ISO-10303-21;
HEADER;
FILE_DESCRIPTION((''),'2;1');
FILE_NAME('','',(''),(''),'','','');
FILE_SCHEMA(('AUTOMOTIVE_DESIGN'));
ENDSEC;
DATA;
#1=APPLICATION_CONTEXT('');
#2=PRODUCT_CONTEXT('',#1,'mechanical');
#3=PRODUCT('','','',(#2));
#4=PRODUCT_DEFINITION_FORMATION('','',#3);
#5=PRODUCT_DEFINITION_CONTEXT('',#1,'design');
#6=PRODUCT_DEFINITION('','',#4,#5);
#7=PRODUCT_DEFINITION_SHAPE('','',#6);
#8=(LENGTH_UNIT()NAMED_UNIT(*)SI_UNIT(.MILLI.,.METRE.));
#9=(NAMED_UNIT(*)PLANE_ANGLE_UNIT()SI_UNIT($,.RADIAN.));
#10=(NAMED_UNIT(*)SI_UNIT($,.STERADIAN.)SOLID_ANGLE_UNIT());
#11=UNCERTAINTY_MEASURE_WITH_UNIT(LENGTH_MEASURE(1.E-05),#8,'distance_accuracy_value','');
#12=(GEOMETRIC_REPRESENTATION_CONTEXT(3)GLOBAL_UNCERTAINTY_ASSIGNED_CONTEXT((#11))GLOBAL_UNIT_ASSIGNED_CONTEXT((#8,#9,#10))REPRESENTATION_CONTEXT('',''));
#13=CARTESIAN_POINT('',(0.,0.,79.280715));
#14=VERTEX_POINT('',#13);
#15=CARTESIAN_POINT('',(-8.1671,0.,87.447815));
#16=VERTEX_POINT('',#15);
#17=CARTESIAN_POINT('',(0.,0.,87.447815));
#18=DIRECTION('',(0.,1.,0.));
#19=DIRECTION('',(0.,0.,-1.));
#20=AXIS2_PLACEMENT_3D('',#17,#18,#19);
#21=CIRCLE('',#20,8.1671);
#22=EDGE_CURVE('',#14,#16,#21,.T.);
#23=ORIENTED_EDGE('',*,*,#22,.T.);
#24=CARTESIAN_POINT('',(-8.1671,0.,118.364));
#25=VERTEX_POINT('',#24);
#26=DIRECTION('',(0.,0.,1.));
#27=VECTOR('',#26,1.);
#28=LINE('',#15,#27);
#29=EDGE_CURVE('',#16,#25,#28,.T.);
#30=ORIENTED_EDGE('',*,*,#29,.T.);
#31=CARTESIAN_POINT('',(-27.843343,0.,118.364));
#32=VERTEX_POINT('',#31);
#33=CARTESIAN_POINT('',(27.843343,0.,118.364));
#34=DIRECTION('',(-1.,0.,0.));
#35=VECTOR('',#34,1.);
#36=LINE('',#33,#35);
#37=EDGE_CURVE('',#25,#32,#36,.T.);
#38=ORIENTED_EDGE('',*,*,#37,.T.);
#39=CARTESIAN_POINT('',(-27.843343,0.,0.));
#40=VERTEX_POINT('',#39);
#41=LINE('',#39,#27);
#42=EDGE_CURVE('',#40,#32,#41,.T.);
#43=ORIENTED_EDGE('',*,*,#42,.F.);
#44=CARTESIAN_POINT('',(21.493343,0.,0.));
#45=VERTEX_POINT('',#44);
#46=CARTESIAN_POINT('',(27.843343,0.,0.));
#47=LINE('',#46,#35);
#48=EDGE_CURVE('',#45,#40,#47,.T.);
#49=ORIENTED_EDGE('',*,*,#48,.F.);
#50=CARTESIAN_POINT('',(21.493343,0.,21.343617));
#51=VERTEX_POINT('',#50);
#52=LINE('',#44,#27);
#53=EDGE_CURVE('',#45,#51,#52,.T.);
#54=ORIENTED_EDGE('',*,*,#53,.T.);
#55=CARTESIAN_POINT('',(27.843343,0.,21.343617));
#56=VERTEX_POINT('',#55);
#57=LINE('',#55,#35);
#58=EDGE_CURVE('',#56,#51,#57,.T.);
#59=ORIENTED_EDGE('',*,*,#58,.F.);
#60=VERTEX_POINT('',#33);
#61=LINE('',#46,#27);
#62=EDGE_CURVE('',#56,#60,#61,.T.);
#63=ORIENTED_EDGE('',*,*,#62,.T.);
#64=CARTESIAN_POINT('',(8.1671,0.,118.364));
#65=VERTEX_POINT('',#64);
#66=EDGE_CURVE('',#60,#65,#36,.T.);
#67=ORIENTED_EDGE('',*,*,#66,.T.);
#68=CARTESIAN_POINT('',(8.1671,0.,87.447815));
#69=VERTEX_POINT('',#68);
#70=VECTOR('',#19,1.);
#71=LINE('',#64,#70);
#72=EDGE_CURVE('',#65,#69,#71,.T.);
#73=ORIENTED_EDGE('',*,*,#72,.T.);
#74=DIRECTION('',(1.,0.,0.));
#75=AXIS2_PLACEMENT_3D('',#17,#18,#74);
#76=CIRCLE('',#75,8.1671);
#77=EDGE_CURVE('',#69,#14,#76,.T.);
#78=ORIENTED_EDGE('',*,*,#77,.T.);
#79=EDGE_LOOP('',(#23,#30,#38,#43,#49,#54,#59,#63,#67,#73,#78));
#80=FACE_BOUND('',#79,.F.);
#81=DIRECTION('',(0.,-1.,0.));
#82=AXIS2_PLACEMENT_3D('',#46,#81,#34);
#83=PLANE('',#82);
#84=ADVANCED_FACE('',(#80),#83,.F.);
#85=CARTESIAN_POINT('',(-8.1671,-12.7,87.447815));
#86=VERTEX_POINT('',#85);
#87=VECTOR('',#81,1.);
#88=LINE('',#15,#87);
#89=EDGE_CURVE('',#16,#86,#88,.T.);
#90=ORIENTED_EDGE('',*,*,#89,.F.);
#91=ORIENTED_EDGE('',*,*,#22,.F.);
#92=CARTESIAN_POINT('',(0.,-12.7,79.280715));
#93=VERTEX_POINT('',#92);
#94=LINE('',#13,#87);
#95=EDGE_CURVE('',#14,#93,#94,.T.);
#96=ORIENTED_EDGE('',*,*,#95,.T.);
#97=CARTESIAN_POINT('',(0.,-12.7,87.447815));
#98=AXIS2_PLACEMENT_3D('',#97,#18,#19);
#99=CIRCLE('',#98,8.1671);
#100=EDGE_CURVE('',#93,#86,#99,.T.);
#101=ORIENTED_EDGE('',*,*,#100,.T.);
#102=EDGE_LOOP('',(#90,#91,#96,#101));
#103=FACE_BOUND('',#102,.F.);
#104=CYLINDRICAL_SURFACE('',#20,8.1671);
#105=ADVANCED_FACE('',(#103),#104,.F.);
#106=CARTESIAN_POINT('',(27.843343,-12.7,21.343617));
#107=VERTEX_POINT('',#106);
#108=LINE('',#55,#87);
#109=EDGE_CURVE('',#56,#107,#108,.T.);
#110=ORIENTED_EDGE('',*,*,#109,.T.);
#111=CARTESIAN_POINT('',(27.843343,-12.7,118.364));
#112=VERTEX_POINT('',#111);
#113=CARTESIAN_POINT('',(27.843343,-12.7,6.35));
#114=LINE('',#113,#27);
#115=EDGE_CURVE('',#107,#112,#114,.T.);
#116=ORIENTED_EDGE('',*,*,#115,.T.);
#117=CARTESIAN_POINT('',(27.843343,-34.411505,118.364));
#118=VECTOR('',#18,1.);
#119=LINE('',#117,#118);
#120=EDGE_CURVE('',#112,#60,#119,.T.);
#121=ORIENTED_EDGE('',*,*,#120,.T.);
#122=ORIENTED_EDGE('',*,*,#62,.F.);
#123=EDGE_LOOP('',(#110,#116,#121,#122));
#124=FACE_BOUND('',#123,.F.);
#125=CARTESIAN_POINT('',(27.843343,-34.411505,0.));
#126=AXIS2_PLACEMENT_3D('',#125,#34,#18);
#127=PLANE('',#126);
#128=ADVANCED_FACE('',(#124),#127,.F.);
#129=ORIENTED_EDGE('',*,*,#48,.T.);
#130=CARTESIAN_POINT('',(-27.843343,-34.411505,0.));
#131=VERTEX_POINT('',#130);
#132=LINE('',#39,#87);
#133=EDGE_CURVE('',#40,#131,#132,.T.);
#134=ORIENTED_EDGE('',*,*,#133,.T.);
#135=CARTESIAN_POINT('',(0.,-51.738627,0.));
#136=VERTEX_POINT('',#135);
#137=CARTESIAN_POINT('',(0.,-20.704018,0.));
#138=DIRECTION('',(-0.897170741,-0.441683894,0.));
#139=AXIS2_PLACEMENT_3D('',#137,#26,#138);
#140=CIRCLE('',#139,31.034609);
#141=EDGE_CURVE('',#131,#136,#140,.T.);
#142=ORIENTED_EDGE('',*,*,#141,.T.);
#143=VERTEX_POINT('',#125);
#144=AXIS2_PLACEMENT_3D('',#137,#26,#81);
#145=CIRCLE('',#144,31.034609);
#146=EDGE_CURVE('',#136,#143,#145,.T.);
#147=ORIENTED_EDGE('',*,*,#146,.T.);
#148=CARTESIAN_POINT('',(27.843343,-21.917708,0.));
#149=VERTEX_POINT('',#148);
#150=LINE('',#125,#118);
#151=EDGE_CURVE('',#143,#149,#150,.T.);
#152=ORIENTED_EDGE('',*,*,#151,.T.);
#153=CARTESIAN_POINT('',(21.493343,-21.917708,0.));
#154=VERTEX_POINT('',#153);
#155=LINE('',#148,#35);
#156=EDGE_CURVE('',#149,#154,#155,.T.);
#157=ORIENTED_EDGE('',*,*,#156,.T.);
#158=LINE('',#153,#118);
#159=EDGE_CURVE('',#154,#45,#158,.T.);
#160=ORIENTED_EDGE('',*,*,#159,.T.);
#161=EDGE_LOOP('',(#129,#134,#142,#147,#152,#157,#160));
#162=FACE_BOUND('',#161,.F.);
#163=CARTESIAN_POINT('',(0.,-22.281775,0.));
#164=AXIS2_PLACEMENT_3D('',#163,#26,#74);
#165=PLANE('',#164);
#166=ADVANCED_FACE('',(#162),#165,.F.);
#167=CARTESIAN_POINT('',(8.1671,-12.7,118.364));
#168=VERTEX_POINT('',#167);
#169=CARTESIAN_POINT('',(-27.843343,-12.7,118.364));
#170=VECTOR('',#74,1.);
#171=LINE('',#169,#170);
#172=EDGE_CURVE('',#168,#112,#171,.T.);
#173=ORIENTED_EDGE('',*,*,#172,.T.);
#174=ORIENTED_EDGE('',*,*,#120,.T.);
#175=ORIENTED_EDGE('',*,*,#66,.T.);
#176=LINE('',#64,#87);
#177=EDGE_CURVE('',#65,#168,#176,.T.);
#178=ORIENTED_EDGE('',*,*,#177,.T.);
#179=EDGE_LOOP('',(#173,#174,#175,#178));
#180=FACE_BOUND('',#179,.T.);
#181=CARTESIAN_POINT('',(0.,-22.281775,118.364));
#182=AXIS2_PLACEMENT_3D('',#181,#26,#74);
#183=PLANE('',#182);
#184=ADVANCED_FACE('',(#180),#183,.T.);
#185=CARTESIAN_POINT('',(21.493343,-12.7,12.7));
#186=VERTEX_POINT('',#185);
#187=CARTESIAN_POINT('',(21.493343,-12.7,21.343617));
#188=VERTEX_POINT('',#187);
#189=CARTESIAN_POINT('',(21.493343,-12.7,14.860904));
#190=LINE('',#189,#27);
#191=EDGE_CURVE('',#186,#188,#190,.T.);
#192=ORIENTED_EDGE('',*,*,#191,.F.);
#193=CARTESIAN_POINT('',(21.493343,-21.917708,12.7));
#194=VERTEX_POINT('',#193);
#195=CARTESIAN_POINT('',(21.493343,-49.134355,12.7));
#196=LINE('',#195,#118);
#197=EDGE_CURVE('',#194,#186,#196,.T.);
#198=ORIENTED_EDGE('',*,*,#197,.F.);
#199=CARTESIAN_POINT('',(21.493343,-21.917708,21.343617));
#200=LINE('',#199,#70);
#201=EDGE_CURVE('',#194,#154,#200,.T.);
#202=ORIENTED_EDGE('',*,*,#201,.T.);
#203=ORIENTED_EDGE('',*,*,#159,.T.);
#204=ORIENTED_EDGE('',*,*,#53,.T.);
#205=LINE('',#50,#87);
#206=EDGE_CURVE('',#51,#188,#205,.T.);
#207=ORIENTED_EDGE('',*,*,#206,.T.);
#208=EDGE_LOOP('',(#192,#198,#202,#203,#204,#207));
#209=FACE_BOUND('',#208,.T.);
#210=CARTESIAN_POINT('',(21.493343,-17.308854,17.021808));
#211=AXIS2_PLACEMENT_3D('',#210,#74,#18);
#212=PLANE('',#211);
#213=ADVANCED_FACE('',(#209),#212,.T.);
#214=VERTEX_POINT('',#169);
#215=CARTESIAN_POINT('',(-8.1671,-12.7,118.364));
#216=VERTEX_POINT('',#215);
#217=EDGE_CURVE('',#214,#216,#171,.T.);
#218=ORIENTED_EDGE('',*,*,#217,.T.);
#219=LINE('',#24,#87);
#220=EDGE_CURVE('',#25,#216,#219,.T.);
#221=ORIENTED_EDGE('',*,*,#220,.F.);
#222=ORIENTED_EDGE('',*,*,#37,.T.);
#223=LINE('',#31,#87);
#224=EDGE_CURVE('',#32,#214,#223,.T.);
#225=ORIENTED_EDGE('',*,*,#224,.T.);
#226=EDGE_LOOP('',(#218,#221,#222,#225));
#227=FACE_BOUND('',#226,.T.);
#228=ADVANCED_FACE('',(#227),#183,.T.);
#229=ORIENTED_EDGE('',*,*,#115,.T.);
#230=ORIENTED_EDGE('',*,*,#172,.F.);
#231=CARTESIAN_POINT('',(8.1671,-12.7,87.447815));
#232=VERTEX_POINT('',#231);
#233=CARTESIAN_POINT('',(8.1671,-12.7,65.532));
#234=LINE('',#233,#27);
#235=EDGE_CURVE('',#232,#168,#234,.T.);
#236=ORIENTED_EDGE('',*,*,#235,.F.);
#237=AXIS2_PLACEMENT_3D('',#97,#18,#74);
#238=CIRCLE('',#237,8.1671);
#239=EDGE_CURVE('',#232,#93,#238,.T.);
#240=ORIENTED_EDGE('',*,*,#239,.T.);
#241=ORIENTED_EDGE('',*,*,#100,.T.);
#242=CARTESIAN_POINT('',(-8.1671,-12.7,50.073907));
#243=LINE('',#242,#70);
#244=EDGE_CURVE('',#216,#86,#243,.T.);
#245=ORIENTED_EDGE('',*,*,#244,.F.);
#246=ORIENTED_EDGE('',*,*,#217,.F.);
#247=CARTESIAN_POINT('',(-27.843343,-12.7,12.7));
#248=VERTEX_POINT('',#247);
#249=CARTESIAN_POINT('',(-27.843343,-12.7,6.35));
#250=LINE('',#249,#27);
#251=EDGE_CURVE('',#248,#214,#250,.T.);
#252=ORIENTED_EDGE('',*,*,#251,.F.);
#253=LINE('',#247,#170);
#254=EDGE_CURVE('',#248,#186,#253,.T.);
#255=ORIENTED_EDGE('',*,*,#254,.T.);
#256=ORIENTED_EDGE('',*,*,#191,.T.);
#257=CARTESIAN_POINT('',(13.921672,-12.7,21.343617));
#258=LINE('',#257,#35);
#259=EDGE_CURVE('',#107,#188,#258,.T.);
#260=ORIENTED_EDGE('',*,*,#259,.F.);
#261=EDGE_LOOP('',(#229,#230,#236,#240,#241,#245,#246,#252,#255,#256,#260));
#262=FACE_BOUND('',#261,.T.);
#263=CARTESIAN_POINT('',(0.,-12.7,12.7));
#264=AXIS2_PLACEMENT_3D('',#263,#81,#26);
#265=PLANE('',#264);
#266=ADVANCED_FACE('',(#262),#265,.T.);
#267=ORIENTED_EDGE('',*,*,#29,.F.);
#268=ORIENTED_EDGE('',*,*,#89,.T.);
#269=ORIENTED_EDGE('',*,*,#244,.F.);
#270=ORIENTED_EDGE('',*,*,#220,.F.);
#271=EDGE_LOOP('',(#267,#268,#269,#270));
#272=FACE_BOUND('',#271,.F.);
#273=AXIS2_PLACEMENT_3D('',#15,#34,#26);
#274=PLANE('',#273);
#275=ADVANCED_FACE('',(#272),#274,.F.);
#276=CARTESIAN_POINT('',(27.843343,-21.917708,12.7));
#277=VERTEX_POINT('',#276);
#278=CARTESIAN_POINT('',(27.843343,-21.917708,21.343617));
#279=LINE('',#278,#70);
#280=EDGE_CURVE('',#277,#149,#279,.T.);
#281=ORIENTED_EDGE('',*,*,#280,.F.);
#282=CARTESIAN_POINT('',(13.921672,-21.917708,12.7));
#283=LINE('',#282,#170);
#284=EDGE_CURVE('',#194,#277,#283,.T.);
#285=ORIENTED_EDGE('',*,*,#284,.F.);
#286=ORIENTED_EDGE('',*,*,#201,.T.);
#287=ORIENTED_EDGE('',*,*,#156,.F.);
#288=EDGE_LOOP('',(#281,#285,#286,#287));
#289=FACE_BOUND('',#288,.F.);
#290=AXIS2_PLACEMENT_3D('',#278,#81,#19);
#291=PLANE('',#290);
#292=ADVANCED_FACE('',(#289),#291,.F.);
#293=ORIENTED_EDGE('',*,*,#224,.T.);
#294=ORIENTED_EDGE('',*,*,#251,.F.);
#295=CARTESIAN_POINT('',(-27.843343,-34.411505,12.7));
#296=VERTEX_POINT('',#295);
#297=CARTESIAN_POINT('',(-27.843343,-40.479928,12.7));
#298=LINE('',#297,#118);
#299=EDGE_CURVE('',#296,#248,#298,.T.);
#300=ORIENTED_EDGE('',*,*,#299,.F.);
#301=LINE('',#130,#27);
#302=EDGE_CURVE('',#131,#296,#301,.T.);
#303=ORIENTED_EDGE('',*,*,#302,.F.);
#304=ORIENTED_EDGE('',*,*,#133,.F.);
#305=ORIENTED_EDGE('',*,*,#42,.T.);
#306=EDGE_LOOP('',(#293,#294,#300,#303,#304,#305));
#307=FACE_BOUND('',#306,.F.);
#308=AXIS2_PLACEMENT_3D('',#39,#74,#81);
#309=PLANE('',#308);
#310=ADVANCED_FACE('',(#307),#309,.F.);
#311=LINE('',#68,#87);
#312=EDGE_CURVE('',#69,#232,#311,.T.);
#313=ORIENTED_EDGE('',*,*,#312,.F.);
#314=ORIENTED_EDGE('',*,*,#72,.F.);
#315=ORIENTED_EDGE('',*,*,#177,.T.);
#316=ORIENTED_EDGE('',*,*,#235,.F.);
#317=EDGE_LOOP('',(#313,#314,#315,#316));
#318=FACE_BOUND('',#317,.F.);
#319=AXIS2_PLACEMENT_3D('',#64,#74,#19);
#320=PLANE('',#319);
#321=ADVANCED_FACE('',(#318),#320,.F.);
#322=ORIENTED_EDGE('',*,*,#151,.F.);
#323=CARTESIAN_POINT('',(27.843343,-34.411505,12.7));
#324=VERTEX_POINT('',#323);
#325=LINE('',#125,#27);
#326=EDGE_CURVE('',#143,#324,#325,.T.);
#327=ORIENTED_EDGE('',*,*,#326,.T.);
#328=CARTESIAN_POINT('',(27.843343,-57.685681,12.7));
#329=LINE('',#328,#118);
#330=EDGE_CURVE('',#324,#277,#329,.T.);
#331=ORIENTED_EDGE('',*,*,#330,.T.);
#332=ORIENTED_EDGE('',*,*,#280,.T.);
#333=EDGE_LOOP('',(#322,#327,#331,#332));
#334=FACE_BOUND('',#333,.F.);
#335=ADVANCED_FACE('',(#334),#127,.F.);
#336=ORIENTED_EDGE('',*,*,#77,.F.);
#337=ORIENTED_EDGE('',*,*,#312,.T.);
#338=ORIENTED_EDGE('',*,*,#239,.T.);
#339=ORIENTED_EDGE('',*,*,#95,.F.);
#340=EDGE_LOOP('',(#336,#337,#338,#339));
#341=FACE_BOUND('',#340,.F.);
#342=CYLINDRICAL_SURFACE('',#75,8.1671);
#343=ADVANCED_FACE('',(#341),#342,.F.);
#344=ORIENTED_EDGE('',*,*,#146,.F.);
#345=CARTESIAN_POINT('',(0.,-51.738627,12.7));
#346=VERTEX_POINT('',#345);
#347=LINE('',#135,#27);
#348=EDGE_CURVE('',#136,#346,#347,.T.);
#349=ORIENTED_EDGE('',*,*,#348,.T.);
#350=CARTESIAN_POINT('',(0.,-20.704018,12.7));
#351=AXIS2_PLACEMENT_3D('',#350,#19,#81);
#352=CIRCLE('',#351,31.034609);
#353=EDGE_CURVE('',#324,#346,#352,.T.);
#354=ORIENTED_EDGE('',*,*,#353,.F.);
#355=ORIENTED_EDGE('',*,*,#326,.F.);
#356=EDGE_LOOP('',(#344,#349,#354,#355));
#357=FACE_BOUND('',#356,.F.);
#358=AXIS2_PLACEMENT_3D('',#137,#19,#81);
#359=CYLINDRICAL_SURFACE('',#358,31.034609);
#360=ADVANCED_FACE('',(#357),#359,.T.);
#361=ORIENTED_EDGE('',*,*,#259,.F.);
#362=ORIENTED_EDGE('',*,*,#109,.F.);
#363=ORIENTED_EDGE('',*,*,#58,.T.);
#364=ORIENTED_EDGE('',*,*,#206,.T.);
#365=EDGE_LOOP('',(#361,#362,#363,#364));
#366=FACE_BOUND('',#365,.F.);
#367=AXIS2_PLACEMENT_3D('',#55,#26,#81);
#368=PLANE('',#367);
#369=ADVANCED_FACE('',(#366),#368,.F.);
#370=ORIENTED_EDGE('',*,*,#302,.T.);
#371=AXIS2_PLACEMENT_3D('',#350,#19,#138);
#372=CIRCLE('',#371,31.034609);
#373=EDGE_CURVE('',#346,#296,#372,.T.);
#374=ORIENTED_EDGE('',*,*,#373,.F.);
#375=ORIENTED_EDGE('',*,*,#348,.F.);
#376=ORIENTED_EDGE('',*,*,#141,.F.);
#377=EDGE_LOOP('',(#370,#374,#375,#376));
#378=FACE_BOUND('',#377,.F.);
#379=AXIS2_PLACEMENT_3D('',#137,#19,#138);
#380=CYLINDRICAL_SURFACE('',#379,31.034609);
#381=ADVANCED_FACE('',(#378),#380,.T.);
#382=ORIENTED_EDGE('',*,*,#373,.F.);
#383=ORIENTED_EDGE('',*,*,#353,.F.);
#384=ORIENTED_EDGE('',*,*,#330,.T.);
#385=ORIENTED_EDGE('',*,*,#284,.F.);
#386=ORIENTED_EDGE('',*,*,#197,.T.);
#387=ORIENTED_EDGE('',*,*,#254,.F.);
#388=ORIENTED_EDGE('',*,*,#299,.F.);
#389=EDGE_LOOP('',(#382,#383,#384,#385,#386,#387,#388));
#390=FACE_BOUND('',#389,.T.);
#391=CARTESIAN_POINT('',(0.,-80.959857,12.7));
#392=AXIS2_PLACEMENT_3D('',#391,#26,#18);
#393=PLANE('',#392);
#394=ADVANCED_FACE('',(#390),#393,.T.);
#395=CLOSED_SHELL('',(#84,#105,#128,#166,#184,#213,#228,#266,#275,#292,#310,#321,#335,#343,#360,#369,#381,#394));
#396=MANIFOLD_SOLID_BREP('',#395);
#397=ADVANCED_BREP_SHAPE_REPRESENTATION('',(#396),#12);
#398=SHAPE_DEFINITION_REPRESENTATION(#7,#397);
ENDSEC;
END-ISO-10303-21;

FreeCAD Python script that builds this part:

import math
import FreeCAD as App
import Part
import Sketcher

V = App.Vector
Q = App.Units.Quantity


def add_polygon(sketch, points):
    """Adds a closed chain of lines whose ends are joined by coincident constraints."""
    first, n = sketch.GeometryCount, len(points)
    for a, b in zip(points, points[1:] + points[:1]):
        sketch.addGeometry(Part.LineSegment(App.Vector(*a, 0), App.Vector(*b, 0)), False)
    for i in range(n):
        sketch.addConstraint(Sketcher.Constraint("Coincident", first + i, 2, first + (i + 1) % n, 1))

doc = App.newDocument("Part")
body = doc.addObject("PartDesign::Body", "Body")

sketch1 = body.newObject("Sketcher::SketchObject", "Sketch")
sketch1.AttachmentSupport = (doc.getObject("XY_Plane"), [""])
sketch1.MapMode = "FlatFace"
sketch1.addGeometry(Part.LineSegment(V(27.843343, 0, 0), V(-27.843343, 0, 0)), False)
sketch1.addGeometry(Part.LineSegment(V(-27.843343, 0, 0), V(-27.843343, -34.411505, 0)), False)
sketch1.addGeometry(Part.ArcOfCircle(Part.Circle(V(0, -20.704018, 0), V(0, 0, 1), 31.034609), math.radians(-153.78863), math.radians(-90)), False)
sketch1.addGeometry(Part.ArcOfCircle(Part.Circle(V(0, -20.704018, 0), V(0, 0, 1), 31.034609), math.radians(-90), math.radians(-26.21137)), False)
sketch1.addGeometry(Part.LineSegment(V(27.843343, -34.411505, 0), V(27.843343, 0, 0)), False)
sketch1.addConstraint(Sketcher.Constraint("Coincident", 0, 2, 1, 1))
sketch1.addConstraint(Sketcher.Constraint("Coincident", 1, 2, 2, 1))
sketch1.addConstraint(Sketcher.Constraint("Tangent", 2, 2, 3, 1))
sketch1.addConstraint(Sketcher.Constraint("Coincident", 3, 2, 4, 1))
sketch1.addConstraint(Sketcher.Constraint("Coincident", 4, 2, 0, 1))
sketch1.addConstraint(Sketcher.Constraint("Horizontal", 0))
sketch1.addConstraint(Sketcher.Constraint("Vertical", 1))
sketch1.addConstraint(Sketcher.Constraint("Vertical", 4))
sketch1.addConstraint(Sketcher.Constraint("Equal", 2, 3))
sketch1.addConstraint(Sketcher.Constraint("Symmetric", 0, 2, 4, 2, -1, 1))
sketch1.addConstraint(Sketcher.Constraint("PointOnObject", 2, 3, -2))
sketch1.addConstraint(Sketcher.Constraint("PointOnObject", 2, 2, -2))
sketch1.addConstraint(Sketcher.Constraint("Radius", 2, Q("31.034609 mm")))
sketch1.addConstraint(Sketcher.Constraint("DistanceX", 0, 2, 0, 1, Q("55.686686 mm")))
sketch1.addConstraint(Sketcher.Constraint("DistanceY", 1, 2, 1, 1, Q("34.411505 mm")))
pad1 = body.newObject("PartDesign::Pad", "Pad")
pad1.Profile = sketch1
pad1.Length = Q("4.66 in")

sketch2 = body.newObject("Sketcher::SketchObject", "Sketch001")
sketch2.AttachmentSupport = (doc.getObject("YZ_Plane"), [""])
sketch2.MapMode = "FlatFace"
add_polygon(sketch2, [(-80.959857, 118.364), (-80.959857, 12.7), (-12.7, 12.7), (-12.7, 118.364)])
sketch2.addConstraint(Sketcher.Constraint("Vertical", 0))
sketch2.addConstraint(Sketcher.Constraint("Horizontal", 1))
sketch2.addConstraint(Sketcher.Constraint("Vertical", 2))
sketch2.addConstraint(Sketcher.Constraint("Horizontal", 3))
sketch2.addConstraint(Sketcher.Constraint("DistanceY", 0, 2, 0, 1, Q("4.16 in")))
sketch2.addConstraint(Sketcher.Constraint("DistanceY", -1, 1, 0, 2, Q("0.5 in")))
sketch2.addConstraint(Sketcher.Constraint("DistanceX", 1, 2, -1, 1, Q("0.5 in")))
sketch2.addConstraint(Sketcher.Constraint("DistanceX", 1, 1, 1, 2, Q("68.259857 mm")))
pocket1 = body.newObject("PartDesign::Pocket", "Pocket")
pocket1.Profile = sketch2
pocket1.Type = "ThroughAll"
pocket1.Midplane = True

sketch3 = body.newObject("Sketcher::SketchObject", "Sketch002")
sketch3.AttachmentSupport = (doc.getObject("YZ_Plane"), [""])
sketch3.MapMode = "FlatFace"
sketch3.AttachmentOffset = App.Placement(V(0, 0, 27.843343), App.Rotation())
add_polygon(sketch3, [(-21.917708, 21.343617), (-21.917708, 0), (0, 0), (0, 21.343617), (-12.7, 21.343617)])
sketch3.addConstraint(Sketcher.Constraint("Vertical", 0))
sketch3.addConstraint(Sketcher.Constraint("Horizontal", 1))
sketch3.addConstraint(Sketcher.Constraint("Vertical", 2))
sketch3.addConstraint(Sketcher.Constraint("Horizontal", 3))
sketch3.addConstraint(Sketcher.Constraint("Horizontal", 4))
sketch3.addConstraint(Sketcher.Constraint("Coincident", 1, 2, -1, 1))
sketch3.addConstraint(Sketcher.Constraint("DistanceX", 3, 2, 3, 1, Q("0.5 in")))
sketch3.addConstraint(Sketcher.Constraint("DistanceY", 0, 2, 0, 1, Q("0.8402999 in")))
sketch3.addConstraint(Sketcher.Constraint("DistanceX", 1, 1, 1, 2, Q("21.917708 mm")))
pocket2 = body.newObject("PartDesign::Pocket", "Pocket001")
pocket2.Profile = sketch3
pocket2.Length = Q("0.25 in")

sketch4 = body.newObject("Sketcher::SketchObject", "Sketch003")
sketch4.AttachmentSupport = (doc.getObject("XZ_Plane"), [""])
sketch4.MapMode = "FlatFace"
sketch4.addGeometry(Part.LineSegment(V(-8.1671, 118.364, 0), V(8.1671, 118.364, 0)), False)
sketch4.addGeometry(Part.LineSegment(V(8.1671, 118.364, 0), V(8.1671, 87.447815, 0)), False)
sketch4.addGeometry(Part.ArcOfCircle(Part.Circle(V(0, 87.447815, 0), V(0, 0, 1), 8.1671), math.radians(-90), math.radians(0)), False)
sketch4.addGeometry(Part.ArcOfCircle(Part.Circle(V(0, 87.447815, 0), V(0, 0, 1), 8.1671), math.radians(180), math.radians(270)), False)
sketch4.addGeometry(Part.LineSegment(V(-8.1671, 87.447815, 0), V(-8.1671, 118.364, 0)), False)
sketch4.addConstraint(Sketcher.Constraint("Coincident", 0, 2, 1, 1))
sketch4.addConstraint(Sketcher.Constraint("Tangent", 1, 2, 2, 2))
sketch4.addConstraint(Sketcher.Constraint("Tangent", 2, 1, 3, 2))
sketch4.addConstraint(Sketcher.Constraint("Tangent", 3, 1, 4, 1))
sketch4.addConstraint(Sketcher.Constraint("Coincident", 4, 2, 0, 1))
sketch4.addConstraint(Sketcher.Constraint("Horizontal", 0))
sketch4.addConstraint(Sketcher.Constraint("Vertical", 1))
sketch4.addConstraint(Sketcher.Constraint("Vertical", 4))
sketch4.addConstraint(Sketcher.Constraint("Equal", 2, 3))
sketch4.addConstraint(Sketcher.Constraint("PointOnObject", 2, 3, -2))
sketch4.addConstraint(Sketcher.Constraint("PointOnObject", 2, 1, -2))
sketch4.addConstraint(Sketcher.Constraint("DistanceY", -1, 1, 0, 2, Q("4.66 in")))
sketch4.addConstraint(Sketcher.Constraint("Radius", 2, Q("8.1671 mm")))
sketch4.addConstraint(Sketcher.Constraint("DistanceY", 1, 2, 1, 1, Q("30.916185 mm")))
pocket3 = body.newObject("PartDesign::Pocket", "Pocket002")
pocket3.Profile = sketch4
pocket3.Type = "ThroughAll"
pocket3.Reversed = True

doc.recompute()
